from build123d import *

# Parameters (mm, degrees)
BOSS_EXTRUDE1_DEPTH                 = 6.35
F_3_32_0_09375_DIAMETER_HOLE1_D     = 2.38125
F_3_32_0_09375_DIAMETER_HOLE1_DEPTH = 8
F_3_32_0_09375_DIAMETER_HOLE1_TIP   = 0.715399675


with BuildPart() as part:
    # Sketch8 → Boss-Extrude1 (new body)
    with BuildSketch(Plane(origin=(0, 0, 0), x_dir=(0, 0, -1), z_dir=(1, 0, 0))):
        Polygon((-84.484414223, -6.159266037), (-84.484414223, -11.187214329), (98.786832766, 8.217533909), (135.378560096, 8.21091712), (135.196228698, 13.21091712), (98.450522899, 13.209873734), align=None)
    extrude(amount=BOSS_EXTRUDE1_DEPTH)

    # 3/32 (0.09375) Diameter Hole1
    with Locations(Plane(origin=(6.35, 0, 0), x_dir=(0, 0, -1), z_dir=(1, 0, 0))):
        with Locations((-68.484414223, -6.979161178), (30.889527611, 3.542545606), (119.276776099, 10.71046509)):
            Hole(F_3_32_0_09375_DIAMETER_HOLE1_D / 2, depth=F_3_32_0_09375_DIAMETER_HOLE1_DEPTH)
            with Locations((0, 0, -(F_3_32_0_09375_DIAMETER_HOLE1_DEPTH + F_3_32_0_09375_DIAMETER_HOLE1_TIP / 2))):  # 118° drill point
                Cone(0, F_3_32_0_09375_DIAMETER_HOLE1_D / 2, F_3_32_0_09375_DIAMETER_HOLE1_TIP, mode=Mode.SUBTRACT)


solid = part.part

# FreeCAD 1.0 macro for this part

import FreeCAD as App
import Part
import Sketcher

V = App.Vector
Q = App.Units.Quantity


def add_polygon(sketch, points):
    """Adds a closed chain of lines whose ends are joined by coincident constraints."""
    first, n = sketch.GeometryCount, len(points)
    for a, b in zip(points, points[1:] + points[:1]):
        sketch.addGeometry(Part.LineSegment(App.Vector(*a, 0), App.Vector(*b, 0)), False)
    for i in range(n):
        sketch.addConstraint(Sketcher.Constraint("Coincident", first + i, 2, first + (i + 1) % n, 1))

doc = App.newDocument("Part")
params = doc.addObject("Spreadsheet::Sheet", "Params")
for row, (alias, value) in enumerate([
    ("pad1_length", "0.25 in"),
    ("sketch2_diameter", "0.09375 in"),
    ("hole_diameter", "0.09375 in"),
    ("hole_depth", "8 mm"),
], start=1):
    params.set(f"A{row}", alias)
    params.set(f"B{row}", "=" + value)
    params.setAlias(f"B{row}", alias)

body = doc.addObject("PartDesign::Body", "Body")

# Sketch on YZ plane
sketch1 = body.newObject("Sketcher::SketchObject", "Sketch")
sketch1.AttachmentSupport = (doc.getObject("YZ_Plane"), [""])
sketch1.MapMode = "FlatFace"
add_polygon(sketch1, [(-6.159266, 84.484414), (-11.187214, 84.484414), (8.217534, -98.786833), (8.210917, -135.37856), (13.210917, -135.196229), (13.209874, -98.450523)])  # lines 0-5
sketch1.addConstraint(Sketcher.Constraint("Horizontal", 0))
sketch1.addConstraint(Sketcher.Constraint("Parallel", 1, 5))
sketch1.addConstraint(Sketcher.Constraint("DistanceX", 0, 2, 0, 1, 5.027948))
sketch1.addConstraint(Sketcher.Constraint("DistanceX", 2, 2, 3, 2, 5.0))
sketch1.addConstraint(Sketcher.Constraint("DistanceX", 5, 2, 1, 2, 14.3768))
sketch1.addConstraint(Sketcher.Constraint("Distance", 1, 184.295671))
sketch1.addConstraint(Sketcher.Constraint("Distance", 5, 183.957481))
sketch1.addConstraint(Sketcher.Constraint("DistanceY", 2, 2, -1, 1, 135.37856))
sketch1.addConstraint(Sketcher.Constraint("DistanceY", 3, 2, -1, 1, 135.196229))
sketch1.addConstraint(Sketcher.Constraint("DistanceX", 0, 2, 2, 2, 19.398131))
sketch1.addConstraint(Sketcher.Constraint("Distance", 2, 36.591728))
sketch1.addConstraint(Sketcher.Constraint("DistanceX", 0, 2, -1, 1, 11.187214))
pad1 = body.newObject("PartDesign::Pad", "Pad")
pad1.Profile = sketch1
pad1.setExpression("Length", "Params.pad1_length")

# Sketch on YZ plane
sketch2 = body.newObject("Sketcher::SketchObject", "Sketch001")
sketch2.AttachmentSupport = (doc.getObject("YZ_Plane"), [""])
sketch2.MapMode = "FlatFace"
sketch2.AttachmentOffset = App.Placement(V(0, 0, 0.25 * 25.4), App.Rotation())
sketch2.addGeometry(Part.Circle(V(-6.979161, 68.484414, 0), V(0, 0, 1), 1.190625), False)
sketch2.addGeometry(Part.Circle(V(3.542546, -30.889528, 0), V(0, 0, 1), 1.190625), False)
sketch2.addGeometry(Part.Circle(V(10.710465, -119.276776, 0), V(0, 0, 1), 1.190625), False)
sketch2.addConstraint(Sketcher.Constraint("Equal", 0, 1))
sketch2.addConstraint(Sketcher.Constraint("Equal", 1, 2))
sketch2.addConstraint(Sketcher.Constraint("Diameter", 0, Q("0.09375 in")))
sketch2.addConstraint(Sketcher.Constraint("DistanceX", 0, 3, -1, 1, 6.979161))
sketch2.addConstraint(Sketcher.Constraint("DistanceY", 1, 3, 0, 3, 99.373942))
sketch2.addConstraint(Sketcher.Constraint("DistanceX", 1, 3, 2, 3, 7.167919))
sketch2.addConstraint(Sketcher.Constraint("DistanceY", 2, 3, 1, 3, 88.387248))
sketch2.addConstraint(Sketcher.Constraint("DistanceY", -1, 1, 0, 3, 68.484414))
sketch2.addConstraint(Sketcher.Constraint("DistanceX", -1, 1, 1, 3, 3.542546))
sketch2.setExpression("Constraints[2]", "Params.sketch2_diameter")
doc.recompute()
hole = body.newObject("PartDesign::Hole", "Hole")
hole.Profile = sketch2
hole.ThreadType = "None"
hole.setExpression("Diameter", "Params.hole_diameter")
hole.DepthType = "Dimension"
hole.setExpression("Depth", "Params.hole_depth")
hole.DrillPoint = "Angled"
hole.DrillPointAngle = 118

doc.recompute()
